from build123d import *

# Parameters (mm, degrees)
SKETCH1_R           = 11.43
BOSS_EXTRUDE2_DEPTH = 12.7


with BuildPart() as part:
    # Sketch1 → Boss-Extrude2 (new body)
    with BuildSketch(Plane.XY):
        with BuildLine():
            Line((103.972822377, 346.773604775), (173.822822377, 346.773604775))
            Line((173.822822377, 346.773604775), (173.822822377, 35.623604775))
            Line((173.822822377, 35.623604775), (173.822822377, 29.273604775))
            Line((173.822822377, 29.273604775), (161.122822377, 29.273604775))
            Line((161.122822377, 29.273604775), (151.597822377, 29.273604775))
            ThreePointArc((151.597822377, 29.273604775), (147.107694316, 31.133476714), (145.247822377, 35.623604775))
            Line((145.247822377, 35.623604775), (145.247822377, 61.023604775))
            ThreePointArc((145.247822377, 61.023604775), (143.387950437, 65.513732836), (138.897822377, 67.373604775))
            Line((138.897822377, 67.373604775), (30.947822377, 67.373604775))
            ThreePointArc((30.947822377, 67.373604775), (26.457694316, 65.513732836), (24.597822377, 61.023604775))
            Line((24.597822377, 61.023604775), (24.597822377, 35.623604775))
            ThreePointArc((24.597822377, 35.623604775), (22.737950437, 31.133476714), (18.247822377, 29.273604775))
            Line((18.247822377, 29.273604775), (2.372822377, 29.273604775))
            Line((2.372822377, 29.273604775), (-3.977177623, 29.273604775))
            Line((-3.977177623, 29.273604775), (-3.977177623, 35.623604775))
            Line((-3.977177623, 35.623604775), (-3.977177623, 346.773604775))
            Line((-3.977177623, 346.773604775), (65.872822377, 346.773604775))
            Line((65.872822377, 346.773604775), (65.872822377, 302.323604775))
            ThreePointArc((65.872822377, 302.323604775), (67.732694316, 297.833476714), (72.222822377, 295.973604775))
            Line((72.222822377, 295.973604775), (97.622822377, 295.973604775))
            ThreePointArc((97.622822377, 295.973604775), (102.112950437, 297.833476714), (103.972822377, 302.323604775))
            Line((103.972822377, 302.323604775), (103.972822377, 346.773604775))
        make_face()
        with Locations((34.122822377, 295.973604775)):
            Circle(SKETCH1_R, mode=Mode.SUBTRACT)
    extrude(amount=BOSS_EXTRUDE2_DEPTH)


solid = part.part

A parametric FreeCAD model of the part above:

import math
import FreeCAD as App
import Part
import Sketcher
Q = App.Units.Quantity

doc = App.newDocument("Part")
body = doc.addObject("PartDesign::Body", "Body")

sketch1 = body.newObject("Sketcher::SketchObject", "Sketch")
sketch1.AttachmentSupport = (doc.getObject("XY_Plane"), [""])
sketch1.MapMode = "FlatFace"
sketch1.addGeometry([
    Part.LineSegment(App.Vector(174, 347, 0), App.Vector(104, 347, 0)),
    Part.LineSegment(App.Vector(104, 347, 0), App.Vector(104, 302, 0)),
    Part.ArcOfCircle(Part.Circle(App.Vector(98, 302, 0), App.Vector(0, 0, 1), 6), math.radians(-90), math.radians(0)),
    Part.LineSegment(App.Vector(98, 296, 0), App.Vector(72, 296, 0)),
    Part.ArcOfCircle(Part.Circle(App.Vector(72, 302, 0), App.Vector(0, 0, 1), 6), math.radians(180), math.radians(270)),
    Part.LineSegment(App.Vector(66, 302, 0), App.Vector(66, 347, 0)),
    Part.LineSegment(App.Vector(66, 347, 0), App.Vector(-4, 347, 0)),
    Part.LineSegment(App.Vector(-4, 347, 0), App.Vector(-4, 29, 0)),
    Part.LineSegment(App.Vector(-4, 29, 0), App.Vector(18, 29, 0)),
    Part.ArcOfCircle(Part.Circle(App.Vector(18, 36, 0), App.Vector(0, 0, 1), 6), math.radians(-90), math.radians(0)),
    Part.LineSegment(App.Vector(25, 36, 0), App.Vector(25, 61, 0)),
    Part.ArcOfCircle(Part.Circle(App.Vector(31, 61, 0), App.Vector(0, 0, 1), 6), math.radians(90), math.radians(180)),
    Part.LineSegment(App.Vector(31, 67, 0), App.Vector(139, 67, 0)),
    Part.ArcOfCircle(Part.Circle(App.Vector(139, 61, 0), App.Vector(0, 0, 1), 6), math.radians(0), math.radians(90)),
    Part.LineSegment(App.Vector(145, 61, 0), App.Vector(145, 36, 0)),
    Part.ArcOfCircle(Part.Circle(App.Vector(152, 36, 0), App.Vector(0, 0, 1), 6), math.radians(180), math.radians(270)),
    Part.LineSegment(App.Vector(152, 29, 0), App.Vector(174, 29, 0)),
    Part.LineSegment(App.Vector(174, 29, 0), App.Vector(174, 347, 0)),
    Part.Circle(App.Vector(34, 296, 0), App.Vector(0, 0, 1), 11),
], False)
sketch1.addConstraint([
    Sketcher.Constraint("Coincident", 0, 2, 1, 1),
    Sketcher.Constraint("Tangent", 1, 2, 2, 2),
    Sketcher.Constraint("Tangent", 2, 1, 3, 1),
    Sketcher.Constraint("Tangent", 3, 2, 4, 2),
    Sketcher.Constraint("Tangent", 4, 1, 5, 1),
    Sketcher.Constraint("Coincident", 5, 2, 6, 1),
    Sketcher.Constraint("Coincident", 6, 2, 7, 1),
    Sketcher.Constraint("Coincident", 7, 2, 8, 1),
    Sketcher.Constraint("Tangent", 8, 2, 9, 1),
    Sketcher.Constraint("Tangent", 9, 2, 10, 1),
    Sketcher.Constraint("Tangent", 10, 2, 11, 2),
    Sketcher.Constraint("Tangent", 11, 1, 12, 1),
    Sketcher.Constraint("Tangent", 12, 2, 13, 2),
    Sketcher.Constraint("Tangent", 13, 1, 14, 1),
    Sketcher.Constraint("Tangent", 14, 2, 15, 1),
    Sketcher.Constraint("Tangent", 15, 2, 16, 1),
    Sketcher.Constraint("Coincident", 16, 2, 17, 1),
    Sketcher.Constraint("Coincident", 17, 2, 0, 1),
    Sketcher.Constraint("Horizontal", 0),
    Sketcher.Constraint("Vertical", 1),
    Sketcher.Constraint("Horizontal", 3),
    Sketcher.Constraint("Vertical", 5),
    Sketcher.Constraint("Horizontal", 6),
    Sketcher.Constraint("Vertical", 7),
    Sketcher.Constraint("Horizontal", 8),
    Sketcher.Constraint("Vertical", 10),
    Sketcher.Constraint("Horizontal", 12),
    Sketcher.Constraint("Vertical", 14),
    Sketcher.Constraint("Horizontal", 16),
    Sketcher.Constraint("Vertical", 17),
    Sketcher.Constraint("Equal", 2, 4),
    Sketcher.Constraint("Equal", 4, 9),
    Sketcher.Constraint("Equal", 9, 11),
    Sketcher.Constraint("Equal", 11, 13),
    Sketcher.Constraint("Equal", 13, 15),
    Sketcher.Constraint("Horizontal", 9, 3, 15, 3),
    Sketcher.Constraint("Horizontal", 18, 3, 2, 1),
    Sketcher.Constraint("Horizontal", 0, 2, 5, 2),
    Sketcher.Constraint("Equal", 0, 6),
    Sketcher.Constraint("Equal", 8, 16),
    Sketcher.Constraint("Equal", 3, 10),
    Sketcher.Constraint("Diameter", 18, Q("0.9 in")),
    Sketcher.Constraint("DistanceX", 3, 2, 3, 1, Q("1 in")),
    Sketcher.Constraint("Radius", 2, Q("0.25 in")),
    Sketcher.Constraint("DistanceY", 7, 2, 7, 1, Q("12.5 in")),
    Sketcher.Constraint("DistanceY", 18, 3, 0, 2, Q("2 in")),
    Sketcher.Constraint("DistanceX", 6, 2, 4, 3, Q("3 in")),
    Sketcher.Constraint("DistanceX", 12, 1, 12, 2, Q("4.25 in")),
    Sketcher.Constraint("DistanceX", 18, 3, 4, 3, Q("1.5 in")),
    Sketcher.Constraint("DistanceX", -1, 1, 2, 3, Q("97.622822 mm")),
    Sketcher.Constraint("DistanceY", -1, 1, 2, 3, Q("302.323605 mm")),
])
pad1 = body.newObject("PartDesign::Pad", "Pad")
pad1.Profile = sketch1
pad1.Length = Q("0.5 in")

doc.recompute()
